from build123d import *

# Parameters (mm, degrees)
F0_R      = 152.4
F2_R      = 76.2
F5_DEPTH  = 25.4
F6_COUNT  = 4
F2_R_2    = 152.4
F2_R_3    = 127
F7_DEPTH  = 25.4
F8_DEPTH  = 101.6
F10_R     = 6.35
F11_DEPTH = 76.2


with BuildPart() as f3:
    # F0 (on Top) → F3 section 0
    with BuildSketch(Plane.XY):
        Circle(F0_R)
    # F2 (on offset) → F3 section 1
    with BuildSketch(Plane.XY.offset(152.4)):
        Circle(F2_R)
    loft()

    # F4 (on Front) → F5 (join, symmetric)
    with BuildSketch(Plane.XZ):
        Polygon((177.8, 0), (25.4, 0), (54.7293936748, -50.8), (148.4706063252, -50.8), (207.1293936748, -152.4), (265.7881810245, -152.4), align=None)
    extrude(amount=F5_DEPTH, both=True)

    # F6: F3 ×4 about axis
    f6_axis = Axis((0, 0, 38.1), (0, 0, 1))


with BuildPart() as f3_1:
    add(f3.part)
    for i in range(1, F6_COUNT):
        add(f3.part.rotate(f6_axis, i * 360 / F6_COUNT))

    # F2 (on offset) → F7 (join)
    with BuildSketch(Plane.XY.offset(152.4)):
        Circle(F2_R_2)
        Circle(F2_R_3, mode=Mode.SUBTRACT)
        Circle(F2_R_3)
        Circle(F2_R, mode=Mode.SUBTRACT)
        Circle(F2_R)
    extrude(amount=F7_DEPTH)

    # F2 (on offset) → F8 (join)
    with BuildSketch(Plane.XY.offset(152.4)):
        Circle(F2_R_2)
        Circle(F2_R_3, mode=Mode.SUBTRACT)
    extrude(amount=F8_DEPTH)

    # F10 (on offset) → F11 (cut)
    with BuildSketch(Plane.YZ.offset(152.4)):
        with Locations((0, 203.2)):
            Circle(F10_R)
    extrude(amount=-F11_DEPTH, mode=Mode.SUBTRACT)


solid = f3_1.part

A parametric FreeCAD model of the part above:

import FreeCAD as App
import Part
import Sketcher

V = App.Vector
Q = App.Units.Quantity

doc = App.newDocument("Part")
body = doc.addObject("PartDesign::Body", "Body")

# Sketch on XY plane
sketch1 = doc.addObject("Sketcher::SketchObject", "Sketch")
body.addObject(sketch1)
sketch1.AttachmentSupport = (doc.XY_Plane, [""])
sketch1.MapMode = "FlatFace"
sketch1.addGeometry(Part.Circle(V(0, 0, 0), V(0, 0, 1), 152.4), False)
sketch1.addConstraint([
    Sketcher.Constraint("Coincident", 0, 3, -1, 1),
    Sketcher.Constraint("Diameter", 0, Q("12 in")),
])

# Sketch on XY plane
sketch2 = doc.addObject("Sketcher::SketchObject", "Sketch001")
body.addObject(sketch2)
sketch2.AttachmentSupport = (doc.XY_Plane, [""])
sketch2.MapMode = "FlatFace"
sketch2.AttachmentOffset = App.Placement(V(0, 0, 6 * 25.4), App.Rotation())
sketch2.addGeometry(Part.Circle(V(0, 0, 0), V(0, 0, 1), 76.2), False)
sketch2.addConstraint([
    Sketcher.Constraint("Coincident", 0, 3, -1, 1),
    Sketcher.Constraint("Diameter", 0, Q("6 in")),
])

additiveloft = doc.addObject("PartDesign::AdditiveLoft", "AdditiveLoft")
body.addObject(additiveloft)
additiveloft.Profile = sketch1
additiveloft.Sections = [sketch2]

# Sketch on XZ plane
sketch3 = doc.addObject("Sketcher::SketchObject", "Sketch002")
body.addObject(sketch3)
sketch3.AttachmentSupport = (doc.XZ_Plane, [""])
sketch3.MapMode = "FlatFace"
sketch3.addGeometry([
    Part.LineSegment(V(177.8, 0, 0), V(25.4, 0, 0)),  # 0
    Part.LineSegment(V(25.4, 0, 0), V(54.729394, -50.8, 0)),  # 1
    Part.LineSegment(V(54.729394, -50.8, 0), V(148.470606, -50.8, 0)),  # 2
    Part.LineSegment(V(148.470606, -50.8, 0), V(207.129394, -152.4, 0)),  # 3
    Part.LineSegment(V(207.129394, -152.4, 0), V(265.788181, -152.4, 0)),  # 4
    Part.LineSegment(V(265.788181, -152.4, 0), V(177.8, 0, 0)),  # 5
], False)
sketch3.addConstraint([
    Sketcher.Constraint("Coincident", 0, 2, 1, 1),
    Sketcher.Constraint("Coincident", 1, 2, 2, 1),
    Sketcher.Constraint("Coincident", 2, 2, 3, 1),
    Sketcher.Constraint("Coincident", 3, 2, 4, 1),
    Sketcher.Constraint("Coincident", 4, 2, 5, 1),
    Sketcher.Constraint("Coincident", 5, 2, 0, 1),
    Sketcher.Constraint("Horizontal", 0),
    Sketcher.Constraint("Horizontal", 2),
    Sketcher.Constraint("Horizontal", 4),
    Sketcher.Constraint("PointOnObject", 0, 2, -1),
    Sketcher.Constraint("Parallel", 1, 3),
    Sketcher.Constraint("Parallel", 3, 5),
    Sketcher.Constraint("DistanceX", 0, 2, 0, 1, Q("6 in")),
    Sketcher.Constraint("DistanceX", -1, 1, 0, 2, Q("1 in")),
    Sketcher.Constraint("DistanceY", 1, 2, -1, 1, Q("2 in")),
    Sketcher.Constraint("DistanceY", 3, 2, -1, 1, Q("6 in")),
    Sketcher.Constraint("Angle", 1, Q("-60 deg")),
    Sketcher.Constraint("DistanceX", 1, 2, 3, 2, Q("6 in")),
])
pad1 = doc.addObject("PartDesign::Pad", "Pad")
body.addObject(pad1)
pad1.Profile = sketch3
pad1.Length = Q("2 in")
pad1.Midplane = True
body2 = doc.addObject("PartDesign::Body", "Body001")
doc.recompute()

body2.BaseFeature = body
doc.recompute()

body3 = doc.addObject("PartDesign::Body", "Body002")
body3.BaseFeature = body
body3.Placement = App.Placement(V(0, 0, 0), App.Rotation(V(0, 0, 1), 90))
boolean = doc.addObject("PartDesign::Boolean", "Boolean")
body2.addObject(boolean)
boolean.Type = "Fuse"
boolean.addObjects([body3])
doc.recompute()

body4 = doc.addObject("PartDesign::Body", "Body003")
body4.BaseFeature = body
body4.Placement = App.Placement(V(0, 0, 0), App.Rotation(V(0, 0, 1), 180))
boolean2 = doc.addObject("PartDesign::Boolean", "Boolean001")
body2.addObject(boolean2)
boolean2.Type = "Fuse"
boolean2.addObjects([body4])
doc.recompute()

body.Placement = App.Placement(V(0, 0, 0), App.Rotation(V(0, 0, 1), 270))
boolean3 = doc.addObject("PartDesign::Boolean", "Boolean002")
body2.addObject(boolean3)
boolean3.Type = "Fuse"
boolean3.addObjects([body])

# Sketch on XY plane
sketch4 = doc.addObject("Sketcher::SketchObject", "Sketch003")
body2.addObject(sketch4)
sketch4.AttachmentSupport = (doc.getObject("XY_Plane001"), [""])
sketch4.MapMode = "FlatFace"
sketch4.AttachmentOffset = App.Placement(V(0, 0, 6 * 25.4), App.Rotation())
sketch4.addGeometry(Part.Circle(V(0, 0, 0), V(0, 0, 1), 152.4), False)
sketch4.addConstraint([
    Sketcher.Constraint("Coincident", 0, 3, -1, 1),
    Sketcher.Constraint("Diameter", 0, Q("12 in")),
])
pad2 = doc.addObject("PartDesign::Pad", "Pad001")
body2.addObject(pad2)
pad2.Profile = sketch4
pad2.Length = Q("1 in")

# Sketch on XY plane
sketch5 = doc.addObject("Sketcher::SketchObject", "Sketch004")
body2.addObject(sketch5)
sketch5.AttachmentSupport = (doc.getObject("XY_Plane001"), [""])
sketch5.MapMode = "FlatFace"
sketch5.AttachmentOffset = App.Placement(V(0, 0, 6 * 25.4), App.Rotation())
sketch5.addGeometry([
    Part.Circle(V(0, 0, 0), V(0, 0, 1), 152.4),
    Part.Circle(V(0, 0, 0), V(0, 0, 1), 127),
], False)
sketch5.addConstraint([
    Sketcher.Constraint("Coincident", 0, 3, -1, 1),
    Sketcher.Constraint("Coincident", 1, 3, -1, 1),
    Sketcher.Constraint("Diameter", 0, Q("12 in")),
    Sketcher.Constraint("Diameter", 1, Q("10 in")),
])
pad3 = doc.addObject("PartDesign::Pad", "Pad002")
body2.addObject(pad3)
pad3.Profile = sketch5
pad3.Length = Q("4 in")

# Sketch on YZ plane
sketch6 = doc.addObject("Sketcher::SketchObject", "Sketch005")
body2.addObject(sketch6)
sketch6.AttachmentSupport = (doc.getObject("YZ_Plane001"), [""])
sketch6.MapMode = "FlatFace"
sketch6.AttachmentOffset = App.Placement(V(0, 0, 6 * 25.4), App.Rotation())
sketch6.addGeometry(Part.Circle(V(0, 203.2, 0), V(0, 0, 1), 6.35), False)
sketch6.addConstraint([
    Sketcher.Constraint("PointOnObject", 0, 3, -2),
    Sketcher.Constraint("Diameter", 0, Q("0.5 in")),
    Sketcher.Constraint("DistanceY", -1, 1, 0, 3, Q("8 in")),
])
pocket1 = doc.addObject("PartDesign::Pocket", "Pocket")
body2.addObject(pocket1)
pocket1.Profile = sketch6
pocket1.Length = Q("3 in")

doc.recompute()
